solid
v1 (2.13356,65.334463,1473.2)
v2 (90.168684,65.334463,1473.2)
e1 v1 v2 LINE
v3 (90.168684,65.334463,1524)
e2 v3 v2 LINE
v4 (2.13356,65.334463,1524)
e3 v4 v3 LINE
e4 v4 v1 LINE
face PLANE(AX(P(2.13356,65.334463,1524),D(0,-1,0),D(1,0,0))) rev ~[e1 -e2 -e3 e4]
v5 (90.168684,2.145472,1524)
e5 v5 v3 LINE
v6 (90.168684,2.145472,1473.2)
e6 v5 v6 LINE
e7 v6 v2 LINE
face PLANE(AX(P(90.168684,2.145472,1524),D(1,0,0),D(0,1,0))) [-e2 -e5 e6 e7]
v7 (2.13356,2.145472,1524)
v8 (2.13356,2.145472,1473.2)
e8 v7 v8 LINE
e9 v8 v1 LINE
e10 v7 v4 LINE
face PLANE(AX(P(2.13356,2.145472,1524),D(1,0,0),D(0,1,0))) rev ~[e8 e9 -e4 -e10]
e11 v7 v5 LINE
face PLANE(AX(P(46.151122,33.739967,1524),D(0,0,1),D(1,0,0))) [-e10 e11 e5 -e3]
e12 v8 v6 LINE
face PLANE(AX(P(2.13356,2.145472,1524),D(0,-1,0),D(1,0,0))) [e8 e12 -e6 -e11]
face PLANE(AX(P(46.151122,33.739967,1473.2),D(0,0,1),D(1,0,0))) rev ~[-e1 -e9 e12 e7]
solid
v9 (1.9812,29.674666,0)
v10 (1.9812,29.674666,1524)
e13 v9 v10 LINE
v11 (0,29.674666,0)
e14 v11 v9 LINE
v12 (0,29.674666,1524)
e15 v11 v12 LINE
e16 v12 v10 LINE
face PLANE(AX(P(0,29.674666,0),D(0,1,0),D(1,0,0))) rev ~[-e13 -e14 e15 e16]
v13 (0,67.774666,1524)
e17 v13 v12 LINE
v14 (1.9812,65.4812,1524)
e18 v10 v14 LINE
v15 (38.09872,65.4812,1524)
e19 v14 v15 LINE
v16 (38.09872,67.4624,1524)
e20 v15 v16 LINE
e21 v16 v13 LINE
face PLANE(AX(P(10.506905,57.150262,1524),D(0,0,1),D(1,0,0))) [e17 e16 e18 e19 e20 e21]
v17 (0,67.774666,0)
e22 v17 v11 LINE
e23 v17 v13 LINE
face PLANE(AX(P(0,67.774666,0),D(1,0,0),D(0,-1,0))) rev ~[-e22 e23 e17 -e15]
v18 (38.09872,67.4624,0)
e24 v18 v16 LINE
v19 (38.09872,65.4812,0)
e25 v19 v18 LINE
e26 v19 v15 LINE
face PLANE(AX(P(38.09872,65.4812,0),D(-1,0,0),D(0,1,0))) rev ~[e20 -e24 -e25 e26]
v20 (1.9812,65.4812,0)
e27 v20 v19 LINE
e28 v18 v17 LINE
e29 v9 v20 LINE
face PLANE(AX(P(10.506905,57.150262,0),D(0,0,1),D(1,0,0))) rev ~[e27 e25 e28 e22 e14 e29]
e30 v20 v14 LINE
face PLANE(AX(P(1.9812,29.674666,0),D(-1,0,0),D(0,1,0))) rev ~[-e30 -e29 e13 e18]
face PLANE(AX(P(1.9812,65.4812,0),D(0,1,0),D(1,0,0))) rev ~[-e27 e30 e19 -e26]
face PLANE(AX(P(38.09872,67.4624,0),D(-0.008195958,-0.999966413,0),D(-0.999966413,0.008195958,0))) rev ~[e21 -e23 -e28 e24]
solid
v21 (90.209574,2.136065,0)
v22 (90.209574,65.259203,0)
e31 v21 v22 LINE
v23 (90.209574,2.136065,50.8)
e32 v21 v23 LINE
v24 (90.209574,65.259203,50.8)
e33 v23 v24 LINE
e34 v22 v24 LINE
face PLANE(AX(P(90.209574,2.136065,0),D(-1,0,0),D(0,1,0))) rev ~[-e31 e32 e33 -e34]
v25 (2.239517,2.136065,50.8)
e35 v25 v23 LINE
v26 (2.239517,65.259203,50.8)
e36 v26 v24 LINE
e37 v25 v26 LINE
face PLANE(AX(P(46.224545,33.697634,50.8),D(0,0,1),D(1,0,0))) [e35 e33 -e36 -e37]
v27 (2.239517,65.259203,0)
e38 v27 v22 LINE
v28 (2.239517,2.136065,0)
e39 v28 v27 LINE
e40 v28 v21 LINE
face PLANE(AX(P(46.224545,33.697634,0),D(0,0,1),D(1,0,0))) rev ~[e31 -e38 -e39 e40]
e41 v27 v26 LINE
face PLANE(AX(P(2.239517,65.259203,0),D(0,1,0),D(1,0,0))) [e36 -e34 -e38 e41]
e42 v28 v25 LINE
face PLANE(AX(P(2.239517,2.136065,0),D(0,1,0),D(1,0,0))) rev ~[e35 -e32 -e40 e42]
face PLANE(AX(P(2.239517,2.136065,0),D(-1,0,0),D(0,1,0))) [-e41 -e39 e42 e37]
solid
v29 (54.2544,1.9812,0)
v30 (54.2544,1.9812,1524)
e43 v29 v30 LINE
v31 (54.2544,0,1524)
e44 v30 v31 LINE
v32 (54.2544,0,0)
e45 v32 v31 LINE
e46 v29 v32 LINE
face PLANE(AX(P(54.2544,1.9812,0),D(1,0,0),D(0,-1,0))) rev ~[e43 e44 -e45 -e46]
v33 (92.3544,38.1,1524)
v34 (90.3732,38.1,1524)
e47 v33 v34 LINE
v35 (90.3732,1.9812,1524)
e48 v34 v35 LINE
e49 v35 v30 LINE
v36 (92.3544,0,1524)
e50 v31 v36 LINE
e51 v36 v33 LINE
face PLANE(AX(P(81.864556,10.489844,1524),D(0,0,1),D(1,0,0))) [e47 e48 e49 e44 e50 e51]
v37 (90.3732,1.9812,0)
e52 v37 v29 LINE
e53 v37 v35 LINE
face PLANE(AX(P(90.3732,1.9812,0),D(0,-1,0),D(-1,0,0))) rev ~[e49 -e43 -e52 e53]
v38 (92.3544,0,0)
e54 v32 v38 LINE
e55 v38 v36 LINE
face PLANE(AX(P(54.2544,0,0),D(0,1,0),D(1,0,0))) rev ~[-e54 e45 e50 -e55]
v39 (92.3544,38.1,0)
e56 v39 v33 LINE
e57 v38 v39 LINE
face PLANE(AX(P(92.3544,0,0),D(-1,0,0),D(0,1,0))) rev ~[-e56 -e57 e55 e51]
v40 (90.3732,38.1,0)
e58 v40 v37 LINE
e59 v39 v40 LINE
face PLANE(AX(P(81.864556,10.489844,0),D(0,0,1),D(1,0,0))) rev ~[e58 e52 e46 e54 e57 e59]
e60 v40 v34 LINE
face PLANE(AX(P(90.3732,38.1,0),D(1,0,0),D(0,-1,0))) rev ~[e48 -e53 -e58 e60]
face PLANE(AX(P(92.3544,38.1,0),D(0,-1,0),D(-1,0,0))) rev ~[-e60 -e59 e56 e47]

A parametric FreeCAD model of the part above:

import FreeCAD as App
import Part
import Sketcher

V = App.Vector
Q = App.Units.Quantity

doc = App.newDocument("Part")
body = doc.addObject("PartDesign::Body", "Body")
body.AllowCompound = True

sketch1 = doc.addObject("Sketcher::SketchObject", "Sketch")
body.addObject(sketch1)
sketch1.AttachmentSupport = (doc.XY_Plane, [""])
sketch1.MapMode = "FlatFace"
sketch1.addGeometry([
    Part.LineSegment(V(38.09872, 67.4624, 0), V(0, 67.774666, 0)),
    Part.LineSegment(V(0, 67.774666, 0), V(0, 29.674666, 0)),
    Part.LineSegment(V(0, 29.674666, 0), V(1.9812, 29.674666, 0)),
    Part.LineSegment(V(1.9812, 29.674666, 0), V(1.9812, 65.4812, 0)),
    Part.LineSegment(V(1.9812, 65.4812, 0), V(38.09872, 65.4812, 0)),
    Part.LineSegment(V(38.09872, 65.4812, 0), V(38.09872, 67.4624, 0)),
    Part.LineSegment(V(54.2544, 1.9812, 0), V(54.2544, 0, 0)),
    Part.LineSegment(V(54.2544, 0, 0), V(92.3544, 0, 0)),
    Part.LineSegment(V(92.3544, 0, 0), V(92.3544, 38.1, 0)),
    Part.LineSegment(V(92.3544, 38.1, 0), V(90.3732, 38.1, 0)),
    Part.LineSegment(V(90.3732, 38.1, 0), V(90.3732, 1.9812, 0)),
    Part.LineSegment(V(90.3732, 1.9812, 0), V(54.2544, 1.9812, 0)),
], False)
sketch1.addConstraint([
    Sketcher.Constraint("Coincident", 0, 2, 1, 1),
    Sketcher.Constraint("Coincident", 1, 2, 2, 1),
    Sketcher.Constraint("Coincident", 2, 2, 3, 1),
    Sketcher.Constraint("Coincident", 3, 2, 4, 1),
    Sketcher.Constraint("Coincident", 4, 2, 5, 1),
    Sketcher.Constraint("Coincident", 5, 2, 0, 1),
    Sketcher.Constraint("Coincident", 6, 2, 7, 1),
    Sketcher.Constraint("Coincident", 7, 2, 8, 1),
    Sketcher.Constraint("Coincident", 8, 2, 9, 1),
    Sketcher.Constraint("Coincident", 9, 2, 10, 1),
    Sketcher.Constraint("Coincident", 10, 2, 11, 1),
    Sketcher.Constraint("Coincident", 11, 2, 6, 1),
    Sketcher.Constraint("Vertical", 1),
    Sketcher.Constraint("Horizontal", 2),
    Sketcher.Constraint("Vertical", 3),
    Sketcher.Constraint("Horizontal", 4),
    Sketcher.Constraint("Vertical", 5),
    Sketcher.Constraint("Vertical", 6),
    Sketcher.Constraint("Horizontal", 7),
    Sketcher.Constraint("Vertical", 8),
    Sketcher.Constraint("Horizontal", 9),
    Sketcher.Constraint("Vertical", 10),
    Sketcher.Constraint("Horizontal", 11),
    Sketcher.Constraint("PointOnObject", 0, 2, -2),
    Sketcher.Constraint("PointOnObject", 6, 2, -1),
    Sketcher.Constraint("DistanceX", 7, 1, 7, 2, Q("1.5 in")),
    Sketcher.Constraint("DistanceY", 1, 2, 1, 1, Q("1.5 in")),
    Sketcher.Constraint("DistanceY", 8, 1, 8, 2, Q("1.5 in")),
    Sketcher.Constraint("Distance", 0, Q("1.5 in")),
    Sketcher.Constraint("DistanceY", 10, 2, 4, 2, Q("2.5 in")),
    Sketcher.Constraint("DistanceX", 2, 1, 2, 2, Q("0.078 in")),
    Sketcher.Constraint("DistanceX", 9, 2, 9, 1, Q("0.078 in")),
    Sketcher.Constraint("DistanceY", 5, 1, 5, 2, Q("0.078 in")),
    Sketcher.Constraint("DistanceY", 6, 2, 6, 1, Q("0.078 in")),
    Sketcher.Constraint("DistanceX", -1, 1, 6, 2, Q("2.136 in")),
    Sketcher.Constraint("DistanceX", 4, 1, 4, 2, 36.11752),
])
pad1 = doc.addObject("PartDesign::Pad", "Pad")
body.addObject(pad1)
pad1.Profile = sketch1
pad1.Length = Q("60 in")
body2 = doc.addObject("PartDesign::Body", "Body001")

sketch2 = doc.addObject("Sketcher::SketchObject", "Sketch001")
body2.addObject(sketch2)
sketch2.AttachmentSupport = (doc.getObject("XY_Plane001"), [""])
sketch2.MapMode = "FlatFace"
sketch2.addGeometry([
    Part.LineSegment(V(2, 65, 0), V(2, 2, 0)),
    Part.LineSegment(V(2, 2, 0), V(90, 2, 0)),
    Part.LineSegment(V(90, 2, 0), V(90, 65, 0)),
    Part.LineSegment(V(90, 65, 0), V(2, 65, 0)),
], False)
sketch2.addConstraint([
    Sketcher.Constraint("Coincident", 0, 2, 1, 1),
    Sketcher.Constraint("Coincident", 1, 2, 2, 1),
    Sketcher.Constraint("Coincident", 2, 2, 3, 1),
    Sketcher.Constraint("Coincident", 3, 2, 0, 1),
    Sketcher.Constraint("Vertical", 0),
    Sketcher.Constraint("Horizontal", 1),
    Sketcher.Constraint("Vertical", 2),
    Sketcher.Constraint("Horizontal", 3),
    Sketcher.Constraint("DistanceX", 1, 1, 1, 2, 87.970057),
    Sketcher.Constraint("DistanceY", 0, 2, 0, 1, 63.123137),
    Sketcher.Constraint("DistanceX", -1, 1, 0, 2, 2.239517),
    Sketcher.Constraint("DistanceY", -1, 1, 0, 2, 2.136065),
])
pad2 = doc.addObject("PartDesign::Pad", "Pad001")
body2.addObject(pad2)
pad2.Profile = sketch2
pad2.Length = Q("2 in")
body3 = doc.addObject("PartDesign::Body", "Body002")

sketch3 = doc.addObject("Sketcher::SketchObject", "Sketch002")
body3.addObject(sketch3)
sketch3.AttachmentSupport = (doc.getObject("XY_Plane002"), [""])
sketch3.MapMode = "FlatFace"
sketch3.AttachmentOffset = App.Placement(V(0, 0, 60 * 25.4), App.Rotation())
sketch3.addGeometry([
    Part.LineSegment(V(2, 65, 0), V(2, 2, 0)),
    Part.LineSegment(V(2, 2, 0), V(90, 2, 0)),
    Part.LineSegment(V(90, 2, 0), V(90, 65, 0)),
    Part.LineSegment(V(90, 65, 0), V(2, 65, 0)),
], False)
sketch3.addConstraint([
    Sketcher.Constraint("Coincident", 0, 2, 1, 1),
    Sketcher.Constraint("Coincident", 1, 2, 2, 1),
    Sketcher.Constraint("Coincident", 2, 2, 3, 1),
    Sketcher.Constraint("Coincident", 3, 2, 0, 1),
    Sketcher.Constraint("Vertical", 0),
    Sketcher.Constraint("Horizontal", 1),
    Sketcher.Constraint("Vertical", 2),
    Sketcher.Constraint("Horizontal", 3),
    Sketcher.Constraint("DistanceY", 0, 2, 0, 1, 63.188991),
    Sketcher.Constraint("DistanceX", 1, 1, 1, 2, 88.035125),
    Sketcher.Constraint("DistanceX", -1, 1, 0, 2, 2.13356),
    Sketcher.Constraint("DistanceY", -1, 1, 0, 2, 2.145472),
])
pad3 = doc.addObject("PartDesign::Pad", "Pad002")
body3.addObject(pad3)
pad3.Profile = sketch3
pad3.Length = Q("2 in")
pad3.Reversed = True

doc.recompute()
